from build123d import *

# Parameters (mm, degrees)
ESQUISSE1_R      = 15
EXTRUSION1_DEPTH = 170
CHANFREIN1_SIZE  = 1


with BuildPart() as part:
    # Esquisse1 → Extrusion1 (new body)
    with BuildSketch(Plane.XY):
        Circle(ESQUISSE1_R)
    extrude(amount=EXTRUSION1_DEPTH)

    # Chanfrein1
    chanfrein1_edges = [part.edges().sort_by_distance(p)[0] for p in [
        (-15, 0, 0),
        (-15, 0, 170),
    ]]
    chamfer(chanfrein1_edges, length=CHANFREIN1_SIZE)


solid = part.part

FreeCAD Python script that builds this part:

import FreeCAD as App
import Part
import Sketcher
from FreeCAD import Vector
Q = App.Units.Quantity


def edges_at(feature, points):
    """Names of the edges that pass closest to the given points."""
    edges = feature.Shape.Edges
    near = lambda p: min(range(len(edges)), key=lambda i: edges[i].distToShape(Part.Vertex(*p))[0])
    return sorted({f"Edge{near(p) + 1}" for p in points})

doc = App.newDocument("Part")
body = doc.addObject("PartDesign::Body", "Body")

# Sketch on XY plane
sketch1 = body.newObject("Sketcher::SketchObject", "Sketch")
sketch1.AttachmentSupport = (doc.getObject("XY_Plane"), [""])
sketch1.MapMode = "FlatFace"
sketch1.addGeometry(Part.Circle(Vector(0, 0, 0), Vector(0, 0, 1), 15), False)
sketch1.addConstraint([
    Sketcher.Constraint("Coincident", 0, 3, -1, 1),
    Sketcher.Constraint("Diameter", 0, Q("30 mm")),
])
pad1 = body.newObject("PartDesign::Pad", "Pad")
pad1.Profile = sketch1
pad1.Length = 170
doc.recompute()

chamfer = body.newObject("PartDesign::Chamfer", "Chamfer")
chamfer.Base = (pad1, edges_at(pad1, [(-15, 0, 0), (-15, 0, 170)]))
chamfer.Size = 1

doc.recompute()
